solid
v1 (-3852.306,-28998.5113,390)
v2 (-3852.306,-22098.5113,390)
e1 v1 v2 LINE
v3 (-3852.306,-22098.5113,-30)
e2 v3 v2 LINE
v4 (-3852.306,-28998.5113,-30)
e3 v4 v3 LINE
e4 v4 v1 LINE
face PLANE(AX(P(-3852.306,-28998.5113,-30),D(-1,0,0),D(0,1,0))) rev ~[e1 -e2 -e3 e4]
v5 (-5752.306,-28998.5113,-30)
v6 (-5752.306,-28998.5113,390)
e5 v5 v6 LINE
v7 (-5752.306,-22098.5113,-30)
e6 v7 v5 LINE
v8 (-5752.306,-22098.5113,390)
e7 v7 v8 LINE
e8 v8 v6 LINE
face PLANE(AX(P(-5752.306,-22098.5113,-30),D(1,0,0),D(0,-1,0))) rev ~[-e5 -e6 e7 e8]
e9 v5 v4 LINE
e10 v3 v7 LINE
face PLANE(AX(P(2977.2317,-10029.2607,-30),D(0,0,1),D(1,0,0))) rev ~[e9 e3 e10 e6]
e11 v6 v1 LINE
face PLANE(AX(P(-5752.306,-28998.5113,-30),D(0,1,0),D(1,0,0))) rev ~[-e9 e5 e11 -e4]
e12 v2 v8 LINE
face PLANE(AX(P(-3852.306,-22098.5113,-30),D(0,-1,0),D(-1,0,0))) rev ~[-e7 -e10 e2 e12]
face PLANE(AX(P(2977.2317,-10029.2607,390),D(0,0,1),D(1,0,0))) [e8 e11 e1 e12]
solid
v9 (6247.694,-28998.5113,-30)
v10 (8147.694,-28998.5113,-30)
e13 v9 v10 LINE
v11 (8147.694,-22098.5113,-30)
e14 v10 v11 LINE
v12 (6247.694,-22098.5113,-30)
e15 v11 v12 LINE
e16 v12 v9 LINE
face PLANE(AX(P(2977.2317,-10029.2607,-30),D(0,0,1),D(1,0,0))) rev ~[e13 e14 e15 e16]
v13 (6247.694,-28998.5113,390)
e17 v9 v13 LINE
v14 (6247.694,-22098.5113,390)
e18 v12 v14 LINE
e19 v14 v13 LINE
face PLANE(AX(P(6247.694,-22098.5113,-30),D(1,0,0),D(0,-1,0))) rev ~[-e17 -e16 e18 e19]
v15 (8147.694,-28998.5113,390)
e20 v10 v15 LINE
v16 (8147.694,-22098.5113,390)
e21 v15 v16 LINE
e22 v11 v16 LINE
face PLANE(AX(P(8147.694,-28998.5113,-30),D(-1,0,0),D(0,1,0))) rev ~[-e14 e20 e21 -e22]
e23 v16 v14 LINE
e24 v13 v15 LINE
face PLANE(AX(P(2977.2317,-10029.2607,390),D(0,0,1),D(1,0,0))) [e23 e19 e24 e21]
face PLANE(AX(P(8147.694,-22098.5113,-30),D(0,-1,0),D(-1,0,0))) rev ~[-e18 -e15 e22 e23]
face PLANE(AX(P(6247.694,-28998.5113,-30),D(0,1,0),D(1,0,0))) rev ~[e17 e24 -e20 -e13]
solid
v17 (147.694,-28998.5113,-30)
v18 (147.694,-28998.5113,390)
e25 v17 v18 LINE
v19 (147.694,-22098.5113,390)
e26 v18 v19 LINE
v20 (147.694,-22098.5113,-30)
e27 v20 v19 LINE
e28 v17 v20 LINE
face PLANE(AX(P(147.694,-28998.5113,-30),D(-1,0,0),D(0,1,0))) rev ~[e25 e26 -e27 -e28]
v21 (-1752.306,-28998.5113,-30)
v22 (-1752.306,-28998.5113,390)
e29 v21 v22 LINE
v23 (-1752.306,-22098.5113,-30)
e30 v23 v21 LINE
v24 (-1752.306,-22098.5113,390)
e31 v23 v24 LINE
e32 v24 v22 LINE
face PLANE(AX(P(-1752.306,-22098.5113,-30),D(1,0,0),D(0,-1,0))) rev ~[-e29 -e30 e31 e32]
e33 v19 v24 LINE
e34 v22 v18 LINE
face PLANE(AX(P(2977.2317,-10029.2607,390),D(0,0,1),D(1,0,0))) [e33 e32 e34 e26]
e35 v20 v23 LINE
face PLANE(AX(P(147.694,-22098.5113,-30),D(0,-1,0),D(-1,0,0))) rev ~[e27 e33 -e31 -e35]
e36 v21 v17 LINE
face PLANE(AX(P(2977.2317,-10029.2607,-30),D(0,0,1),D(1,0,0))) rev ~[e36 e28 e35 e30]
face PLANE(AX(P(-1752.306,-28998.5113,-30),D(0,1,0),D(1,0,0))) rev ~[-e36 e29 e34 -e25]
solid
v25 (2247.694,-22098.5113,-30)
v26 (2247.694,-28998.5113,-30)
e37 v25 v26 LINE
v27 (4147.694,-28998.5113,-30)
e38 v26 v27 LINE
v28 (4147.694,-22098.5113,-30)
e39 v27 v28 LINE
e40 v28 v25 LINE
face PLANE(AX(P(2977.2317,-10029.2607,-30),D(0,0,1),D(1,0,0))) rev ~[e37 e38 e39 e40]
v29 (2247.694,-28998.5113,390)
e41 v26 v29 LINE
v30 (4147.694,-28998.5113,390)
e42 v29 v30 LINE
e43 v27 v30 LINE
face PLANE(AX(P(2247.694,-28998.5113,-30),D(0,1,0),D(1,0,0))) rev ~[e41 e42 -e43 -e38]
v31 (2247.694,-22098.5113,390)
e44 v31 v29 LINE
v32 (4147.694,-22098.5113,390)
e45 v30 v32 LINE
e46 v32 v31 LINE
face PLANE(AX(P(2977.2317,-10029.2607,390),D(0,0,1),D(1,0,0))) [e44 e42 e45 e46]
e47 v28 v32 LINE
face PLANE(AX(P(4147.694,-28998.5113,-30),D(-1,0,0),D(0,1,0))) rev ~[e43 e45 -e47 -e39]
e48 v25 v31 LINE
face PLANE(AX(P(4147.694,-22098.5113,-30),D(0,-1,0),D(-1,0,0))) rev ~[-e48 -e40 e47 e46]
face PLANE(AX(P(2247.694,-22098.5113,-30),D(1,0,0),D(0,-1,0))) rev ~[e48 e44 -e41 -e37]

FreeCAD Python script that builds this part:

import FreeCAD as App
import Part
import Sketcher
from FreeCAD import Vector


def add_polygon(sketch, points):
    """Adds a closed chain of lines whose ends are joined by coincident constraints."""
    first, n = sketch.GeometryCount, len(points)
    for a, b in zip(points, points[1:] + points[:1]):
        sketch.addGeometry(Part.LineSegment(App.Vector(*a, 0), App.Vector(*b, 0)), False)
    for i in range(n):
        sketch.addConstraint(Sketcher.Constraint("Coincident", first + i, 2, first + (i + 1) % n, 1))

doc = App.newDocument("Part")
body = doc.addObject("PartDesign::Body", "Body")
body.AllowCompound = True

sketch1 = body.newObject("Sketcher::SketchObject", "Sketch")
sketch1.AttachmentSupport = (doc.getObject("XY_Plane"), [""])
sketch1.MapMode = "FlatFace"
sketch1.AttachmentOffset = App.Placement(Vector(0, 0, -30), App.Rotation())
add_polygon(sketch1, [(8148, -28999), (8148, -22099), (6248, -22099), (6248, -28999)])
add_polygon(sketch1, [(4148, -28999), (4148, -22099), (2248, -22099), (2248, -28999)])
add_polygon(sketch1, [(148, -28999), (148, -22099), (-1752, -22099), (-1752, -28999)])
add_polygon(sketch1, [(-3852, -28999), (-3852, -22099), (-5752, -22099), (-5752, -28999)])
sketch1.addConstraint([
    Sketcher.Constraint("Vertical", 0),
    Sketcher.Constraint("Horizontal", 1),
    Sketcher.Constraint("Vertical", 2),
    Sketcher.Constraint("Horizontal", 3),
    Sketcher.Constraint("Vertical", 4),
    Sketcher.Constraint("Horizontal", 5),
    Sketcher.Constraint("Vertical", 6),
    Sketcher.Constraint("Horizontal", 7),
    Sketcher.Constraint("Vertical", 8),
    Sketcher.Constraint("Horizontal", 9),
    Sketcher.Constraint("Vertical", 10),
    Sketcher.Constraint("Horizontal", 11),
    Sketcher.Constraint("Vertical", 12),
    Sketcher.Constraint("Horizontal", 13),
    Sketcher.Constraint("Vertical", 14),
    Sketcher.Constraint("Horizontal", 15),
    Sketcher.Constraint("Horizontal", 1, 2, 4, 2),
    Sketcher.Constraint("Horizontal", 3, 2, 6, 2),
    Sketcher.Constraint("Horizontal", 5, 2, 8, 2),
    Sketcher.Constraint("Horizontal", 7, 2, 10, 2),
    Sketcher.Constraint("Horizontal", 9, 2, 12, 2),
    Sketcher.Constraint("Horizontal", 11, 2, 14, 2),
    Sketcher.Constraint("Equal", 3, 5),
    Sketcher.Constraint("Equal", 7, 9),
    Sketcher.Constraint("Equal", 11, 13),
    Sketcher.Constraint("DistanceX", 1, 2, 1, 1, 1900.0),
    Sketcher.Constraint("DistanceY", 0, 1, 0, 2, 6900.0),
    Sketcher.Constraint("DistanceX", 4, 2, 1, 2, 2100.0),
    Sketcher.Constraint("DistanceX", 8, 2, 5, 2, 2100.0),
    Sketcher.Constraint("DistanceX", 12, 2, 9, 2, 2100.0),
    Sketcher.Constraint("DistanceX", -1, 1, 0, 2, 8147.694),
    Sketcher.Constraint("DistanceY", 0, 2, -1, 1, 22098.5113),
])
pad1 = body.newObject("PartDesign::Pad", "Pad")
pad1.Profile = sketch1
pad1.Length = 420

doc.recompute()
